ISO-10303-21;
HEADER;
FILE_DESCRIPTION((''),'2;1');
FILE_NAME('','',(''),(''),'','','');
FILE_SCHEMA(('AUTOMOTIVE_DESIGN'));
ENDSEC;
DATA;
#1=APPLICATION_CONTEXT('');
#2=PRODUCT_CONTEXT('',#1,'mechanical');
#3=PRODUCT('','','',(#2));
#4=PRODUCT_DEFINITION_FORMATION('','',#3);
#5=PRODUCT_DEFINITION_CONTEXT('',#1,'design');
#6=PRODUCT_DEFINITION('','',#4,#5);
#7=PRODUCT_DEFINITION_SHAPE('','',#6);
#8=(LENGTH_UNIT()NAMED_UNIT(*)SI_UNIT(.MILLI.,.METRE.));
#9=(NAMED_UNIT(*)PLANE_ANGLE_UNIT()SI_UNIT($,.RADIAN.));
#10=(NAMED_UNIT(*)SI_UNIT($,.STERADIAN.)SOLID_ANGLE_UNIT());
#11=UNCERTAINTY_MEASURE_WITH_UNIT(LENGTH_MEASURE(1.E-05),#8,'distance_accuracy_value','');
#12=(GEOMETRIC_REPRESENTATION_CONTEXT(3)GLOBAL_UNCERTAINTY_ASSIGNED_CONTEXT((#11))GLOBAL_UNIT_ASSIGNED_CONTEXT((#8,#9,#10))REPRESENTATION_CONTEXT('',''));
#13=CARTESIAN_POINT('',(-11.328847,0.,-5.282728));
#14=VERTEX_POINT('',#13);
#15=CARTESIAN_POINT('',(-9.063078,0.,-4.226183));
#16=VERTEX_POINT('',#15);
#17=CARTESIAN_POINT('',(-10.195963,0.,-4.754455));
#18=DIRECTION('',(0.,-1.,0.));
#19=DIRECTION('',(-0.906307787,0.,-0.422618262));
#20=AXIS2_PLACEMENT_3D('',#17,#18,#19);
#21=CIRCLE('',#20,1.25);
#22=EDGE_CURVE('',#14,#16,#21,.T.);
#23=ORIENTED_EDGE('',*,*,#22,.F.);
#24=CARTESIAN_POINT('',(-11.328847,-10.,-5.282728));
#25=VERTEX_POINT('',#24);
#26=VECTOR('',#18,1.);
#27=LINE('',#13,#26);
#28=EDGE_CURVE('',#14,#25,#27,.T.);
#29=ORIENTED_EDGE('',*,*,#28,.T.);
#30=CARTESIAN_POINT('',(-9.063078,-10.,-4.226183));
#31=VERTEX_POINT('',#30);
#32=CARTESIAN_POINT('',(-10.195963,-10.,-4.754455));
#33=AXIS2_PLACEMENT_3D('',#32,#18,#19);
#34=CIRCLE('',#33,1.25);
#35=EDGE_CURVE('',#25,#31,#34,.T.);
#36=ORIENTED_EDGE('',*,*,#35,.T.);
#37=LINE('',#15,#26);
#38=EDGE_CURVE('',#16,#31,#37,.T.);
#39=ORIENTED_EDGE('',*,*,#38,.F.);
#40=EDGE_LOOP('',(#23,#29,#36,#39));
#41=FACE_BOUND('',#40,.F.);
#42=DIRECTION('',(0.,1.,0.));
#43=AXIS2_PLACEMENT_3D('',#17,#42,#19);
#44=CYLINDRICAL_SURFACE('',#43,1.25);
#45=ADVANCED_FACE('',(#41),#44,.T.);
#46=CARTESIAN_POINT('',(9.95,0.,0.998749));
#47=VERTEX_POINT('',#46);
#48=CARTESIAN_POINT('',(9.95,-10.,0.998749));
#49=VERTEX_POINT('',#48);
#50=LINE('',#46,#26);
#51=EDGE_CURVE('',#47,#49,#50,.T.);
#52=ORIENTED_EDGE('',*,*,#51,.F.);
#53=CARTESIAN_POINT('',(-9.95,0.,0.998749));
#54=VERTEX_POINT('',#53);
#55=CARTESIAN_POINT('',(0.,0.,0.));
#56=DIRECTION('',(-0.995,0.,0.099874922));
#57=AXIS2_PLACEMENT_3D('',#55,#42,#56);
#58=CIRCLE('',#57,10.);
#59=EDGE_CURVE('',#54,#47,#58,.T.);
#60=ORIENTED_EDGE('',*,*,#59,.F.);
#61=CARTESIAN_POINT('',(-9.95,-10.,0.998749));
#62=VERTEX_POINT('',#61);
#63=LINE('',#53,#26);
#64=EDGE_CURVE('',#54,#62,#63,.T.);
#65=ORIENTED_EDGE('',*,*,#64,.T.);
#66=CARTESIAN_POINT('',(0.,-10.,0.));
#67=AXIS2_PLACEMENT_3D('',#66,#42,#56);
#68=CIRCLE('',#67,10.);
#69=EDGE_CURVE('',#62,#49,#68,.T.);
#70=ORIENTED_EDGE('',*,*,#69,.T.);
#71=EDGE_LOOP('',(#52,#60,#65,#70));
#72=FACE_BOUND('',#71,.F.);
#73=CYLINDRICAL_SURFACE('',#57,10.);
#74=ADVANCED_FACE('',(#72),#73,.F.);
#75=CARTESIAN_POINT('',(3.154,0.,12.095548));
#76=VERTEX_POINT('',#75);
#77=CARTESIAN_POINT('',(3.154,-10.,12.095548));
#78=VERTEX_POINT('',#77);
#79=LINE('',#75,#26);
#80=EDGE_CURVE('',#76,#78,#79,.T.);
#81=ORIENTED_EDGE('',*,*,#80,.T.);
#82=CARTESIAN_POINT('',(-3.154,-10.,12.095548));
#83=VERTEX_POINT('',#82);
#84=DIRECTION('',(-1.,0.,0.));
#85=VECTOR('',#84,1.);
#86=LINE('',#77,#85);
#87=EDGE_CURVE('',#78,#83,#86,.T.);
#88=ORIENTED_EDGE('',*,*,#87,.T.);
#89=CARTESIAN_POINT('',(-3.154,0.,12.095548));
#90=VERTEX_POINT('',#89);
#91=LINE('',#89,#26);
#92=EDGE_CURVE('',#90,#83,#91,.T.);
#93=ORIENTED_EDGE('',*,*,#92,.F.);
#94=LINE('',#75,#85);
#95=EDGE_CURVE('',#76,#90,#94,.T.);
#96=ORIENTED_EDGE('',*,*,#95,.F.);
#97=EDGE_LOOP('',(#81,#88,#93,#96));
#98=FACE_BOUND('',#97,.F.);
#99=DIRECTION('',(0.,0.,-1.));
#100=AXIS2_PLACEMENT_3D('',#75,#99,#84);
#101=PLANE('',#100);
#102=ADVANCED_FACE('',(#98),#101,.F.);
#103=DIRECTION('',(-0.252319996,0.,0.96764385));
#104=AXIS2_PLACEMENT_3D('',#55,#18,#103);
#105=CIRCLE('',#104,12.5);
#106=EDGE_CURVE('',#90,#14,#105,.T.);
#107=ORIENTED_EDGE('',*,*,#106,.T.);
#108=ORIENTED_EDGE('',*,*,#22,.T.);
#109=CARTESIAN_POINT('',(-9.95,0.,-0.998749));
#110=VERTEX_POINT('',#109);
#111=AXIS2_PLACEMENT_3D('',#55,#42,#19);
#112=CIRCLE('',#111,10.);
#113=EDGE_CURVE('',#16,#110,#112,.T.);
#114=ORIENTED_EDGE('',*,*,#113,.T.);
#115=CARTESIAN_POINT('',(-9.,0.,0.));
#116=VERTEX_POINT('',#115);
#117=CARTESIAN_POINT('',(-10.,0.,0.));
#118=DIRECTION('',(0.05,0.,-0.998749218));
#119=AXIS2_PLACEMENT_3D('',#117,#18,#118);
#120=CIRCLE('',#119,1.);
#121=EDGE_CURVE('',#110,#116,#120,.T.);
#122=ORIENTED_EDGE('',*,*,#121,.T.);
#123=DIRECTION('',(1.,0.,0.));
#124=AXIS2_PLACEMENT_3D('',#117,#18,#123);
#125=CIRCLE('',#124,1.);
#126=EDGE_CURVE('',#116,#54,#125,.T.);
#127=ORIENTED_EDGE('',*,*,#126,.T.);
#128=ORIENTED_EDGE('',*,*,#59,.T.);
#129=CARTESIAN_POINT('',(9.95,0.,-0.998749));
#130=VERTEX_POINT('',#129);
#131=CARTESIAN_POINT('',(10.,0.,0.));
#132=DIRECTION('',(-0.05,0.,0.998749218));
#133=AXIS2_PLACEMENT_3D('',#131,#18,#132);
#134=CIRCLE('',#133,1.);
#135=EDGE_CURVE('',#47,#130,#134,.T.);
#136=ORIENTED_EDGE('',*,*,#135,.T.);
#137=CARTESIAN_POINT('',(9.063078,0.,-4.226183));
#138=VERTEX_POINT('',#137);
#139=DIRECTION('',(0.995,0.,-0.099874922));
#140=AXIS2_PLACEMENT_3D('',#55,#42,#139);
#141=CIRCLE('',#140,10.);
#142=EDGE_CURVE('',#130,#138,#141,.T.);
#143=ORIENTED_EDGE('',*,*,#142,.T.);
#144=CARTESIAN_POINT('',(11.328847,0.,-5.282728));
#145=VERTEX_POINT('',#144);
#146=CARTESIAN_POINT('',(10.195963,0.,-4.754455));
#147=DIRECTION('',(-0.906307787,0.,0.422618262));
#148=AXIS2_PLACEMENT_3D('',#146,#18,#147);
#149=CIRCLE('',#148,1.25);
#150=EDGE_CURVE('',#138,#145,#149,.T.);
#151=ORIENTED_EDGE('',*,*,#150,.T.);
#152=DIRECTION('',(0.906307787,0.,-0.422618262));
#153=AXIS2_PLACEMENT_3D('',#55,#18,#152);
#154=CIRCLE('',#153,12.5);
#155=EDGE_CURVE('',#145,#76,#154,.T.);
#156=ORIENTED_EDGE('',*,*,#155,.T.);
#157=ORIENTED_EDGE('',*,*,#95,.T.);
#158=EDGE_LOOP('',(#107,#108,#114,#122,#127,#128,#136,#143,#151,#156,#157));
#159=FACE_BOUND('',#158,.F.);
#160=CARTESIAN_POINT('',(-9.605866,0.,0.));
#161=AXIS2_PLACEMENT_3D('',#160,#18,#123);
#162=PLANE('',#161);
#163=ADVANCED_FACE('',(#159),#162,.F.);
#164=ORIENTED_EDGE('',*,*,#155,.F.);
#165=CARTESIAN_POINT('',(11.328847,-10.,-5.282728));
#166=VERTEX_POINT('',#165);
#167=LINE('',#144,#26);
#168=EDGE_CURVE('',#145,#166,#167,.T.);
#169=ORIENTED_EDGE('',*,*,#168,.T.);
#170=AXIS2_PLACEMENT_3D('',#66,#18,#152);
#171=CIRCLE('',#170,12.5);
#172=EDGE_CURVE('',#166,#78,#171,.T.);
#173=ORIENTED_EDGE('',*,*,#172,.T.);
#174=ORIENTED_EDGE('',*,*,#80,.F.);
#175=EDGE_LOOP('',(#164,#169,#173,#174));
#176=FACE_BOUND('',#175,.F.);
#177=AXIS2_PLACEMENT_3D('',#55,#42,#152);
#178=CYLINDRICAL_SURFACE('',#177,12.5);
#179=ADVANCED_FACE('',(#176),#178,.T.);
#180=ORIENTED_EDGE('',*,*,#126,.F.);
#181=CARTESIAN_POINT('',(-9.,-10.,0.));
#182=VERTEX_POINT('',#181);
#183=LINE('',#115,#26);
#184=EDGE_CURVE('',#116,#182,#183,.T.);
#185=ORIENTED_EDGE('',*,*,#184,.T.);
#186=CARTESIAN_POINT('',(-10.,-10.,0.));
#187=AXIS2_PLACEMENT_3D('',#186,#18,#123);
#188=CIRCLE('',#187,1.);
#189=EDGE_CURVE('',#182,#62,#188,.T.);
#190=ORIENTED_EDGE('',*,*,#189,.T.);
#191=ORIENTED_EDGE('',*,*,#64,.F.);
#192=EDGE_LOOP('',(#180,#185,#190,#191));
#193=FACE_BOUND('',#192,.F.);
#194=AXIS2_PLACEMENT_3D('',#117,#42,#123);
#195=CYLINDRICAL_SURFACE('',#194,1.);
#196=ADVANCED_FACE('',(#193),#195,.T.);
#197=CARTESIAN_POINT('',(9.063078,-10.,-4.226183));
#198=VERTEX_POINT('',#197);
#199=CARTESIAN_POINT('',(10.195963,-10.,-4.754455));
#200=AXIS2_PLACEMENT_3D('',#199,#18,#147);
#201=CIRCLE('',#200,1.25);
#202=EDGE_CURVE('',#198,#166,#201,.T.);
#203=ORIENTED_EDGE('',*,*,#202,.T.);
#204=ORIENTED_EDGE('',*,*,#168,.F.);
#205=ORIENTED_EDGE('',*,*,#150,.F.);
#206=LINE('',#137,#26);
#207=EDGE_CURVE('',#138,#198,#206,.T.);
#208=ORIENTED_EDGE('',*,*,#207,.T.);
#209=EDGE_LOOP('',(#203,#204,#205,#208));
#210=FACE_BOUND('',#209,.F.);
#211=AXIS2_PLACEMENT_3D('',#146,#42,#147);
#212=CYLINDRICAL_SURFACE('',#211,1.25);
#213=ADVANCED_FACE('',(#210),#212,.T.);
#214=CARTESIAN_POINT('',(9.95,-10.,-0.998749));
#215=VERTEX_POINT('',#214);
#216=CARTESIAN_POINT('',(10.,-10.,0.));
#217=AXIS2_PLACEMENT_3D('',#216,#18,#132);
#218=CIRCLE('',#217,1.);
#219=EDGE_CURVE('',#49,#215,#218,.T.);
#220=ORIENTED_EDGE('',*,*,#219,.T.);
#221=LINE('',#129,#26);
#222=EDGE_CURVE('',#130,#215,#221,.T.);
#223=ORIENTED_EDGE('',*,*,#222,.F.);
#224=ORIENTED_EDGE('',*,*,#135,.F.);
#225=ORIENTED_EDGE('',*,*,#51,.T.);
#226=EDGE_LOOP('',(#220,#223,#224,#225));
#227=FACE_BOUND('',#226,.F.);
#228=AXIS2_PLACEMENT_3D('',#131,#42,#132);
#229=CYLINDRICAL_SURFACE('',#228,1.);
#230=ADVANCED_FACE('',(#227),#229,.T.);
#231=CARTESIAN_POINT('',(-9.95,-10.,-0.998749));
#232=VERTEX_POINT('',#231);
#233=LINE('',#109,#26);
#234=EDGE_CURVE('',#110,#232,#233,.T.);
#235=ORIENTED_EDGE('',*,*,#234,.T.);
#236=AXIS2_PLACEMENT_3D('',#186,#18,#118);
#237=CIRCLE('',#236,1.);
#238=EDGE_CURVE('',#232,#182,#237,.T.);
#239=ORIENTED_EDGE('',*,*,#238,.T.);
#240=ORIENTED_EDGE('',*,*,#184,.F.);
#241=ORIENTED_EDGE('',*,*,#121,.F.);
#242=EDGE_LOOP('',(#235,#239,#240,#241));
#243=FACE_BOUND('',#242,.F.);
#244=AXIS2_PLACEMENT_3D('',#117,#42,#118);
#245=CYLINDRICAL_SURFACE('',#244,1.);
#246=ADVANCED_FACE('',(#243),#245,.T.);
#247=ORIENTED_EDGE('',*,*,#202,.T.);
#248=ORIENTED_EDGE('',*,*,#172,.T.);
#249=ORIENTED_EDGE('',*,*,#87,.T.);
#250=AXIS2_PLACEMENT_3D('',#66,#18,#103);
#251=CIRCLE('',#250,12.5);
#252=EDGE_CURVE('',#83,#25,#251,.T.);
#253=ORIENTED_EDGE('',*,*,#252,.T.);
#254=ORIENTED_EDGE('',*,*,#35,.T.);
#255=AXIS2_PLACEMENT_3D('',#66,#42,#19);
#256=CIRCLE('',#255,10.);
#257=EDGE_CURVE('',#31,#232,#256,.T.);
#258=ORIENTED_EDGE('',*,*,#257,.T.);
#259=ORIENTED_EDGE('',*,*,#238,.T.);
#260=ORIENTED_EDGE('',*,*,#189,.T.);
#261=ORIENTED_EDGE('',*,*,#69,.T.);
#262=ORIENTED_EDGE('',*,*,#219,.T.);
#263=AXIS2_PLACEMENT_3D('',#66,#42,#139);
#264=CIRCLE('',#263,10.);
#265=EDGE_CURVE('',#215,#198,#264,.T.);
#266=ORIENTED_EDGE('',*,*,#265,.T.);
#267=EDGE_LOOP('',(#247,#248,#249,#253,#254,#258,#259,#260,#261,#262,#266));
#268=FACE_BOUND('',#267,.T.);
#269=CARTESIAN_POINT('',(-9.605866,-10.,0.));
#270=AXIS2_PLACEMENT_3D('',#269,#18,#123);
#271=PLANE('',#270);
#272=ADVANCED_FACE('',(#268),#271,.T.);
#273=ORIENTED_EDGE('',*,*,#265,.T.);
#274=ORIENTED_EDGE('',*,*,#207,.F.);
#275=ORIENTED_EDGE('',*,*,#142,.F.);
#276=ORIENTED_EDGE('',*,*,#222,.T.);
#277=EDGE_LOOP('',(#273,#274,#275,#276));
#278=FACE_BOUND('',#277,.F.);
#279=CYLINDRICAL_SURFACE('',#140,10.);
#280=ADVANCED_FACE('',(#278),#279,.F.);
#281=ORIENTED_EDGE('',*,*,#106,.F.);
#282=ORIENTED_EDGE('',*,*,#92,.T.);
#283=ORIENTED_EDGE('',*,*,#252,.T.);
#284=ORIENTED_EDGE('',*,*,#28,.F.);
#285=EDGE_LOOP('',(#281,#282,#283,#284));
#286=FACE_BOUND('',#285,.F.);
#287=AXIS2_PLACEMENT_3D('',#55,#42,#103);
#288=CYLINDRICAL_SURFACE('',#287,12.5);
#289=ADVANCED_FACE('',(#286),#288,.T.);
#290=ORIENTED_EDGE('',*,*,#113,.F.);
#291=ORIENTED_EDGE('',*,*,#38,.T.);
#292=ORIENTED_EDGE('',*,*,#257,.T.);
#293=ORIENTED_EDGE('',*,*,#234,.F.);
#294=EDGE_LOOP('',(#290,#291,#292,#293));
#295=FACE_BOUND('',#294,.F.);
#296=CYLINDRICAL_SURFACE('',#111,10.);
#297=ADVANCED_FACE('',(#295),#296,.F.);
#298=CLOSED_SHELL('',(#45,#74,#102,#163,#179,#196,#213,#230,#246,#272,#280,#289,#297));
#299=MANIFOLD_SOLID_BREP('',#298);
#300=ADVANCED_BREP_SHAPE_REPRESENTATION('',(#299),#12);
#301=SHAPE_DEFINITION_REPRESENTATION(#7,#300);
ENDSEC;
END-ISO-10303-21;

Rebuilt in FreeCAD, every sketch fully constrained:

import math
import FreeCAD as App
import Part
import Sketcher

V = App.Vector

doc = App.newDocument("Part")
body = doc.addObject("PartDesign::Body", "Body")

sketch1 = body.newObject("Sketcher::SketchObject", "Sketch")
sketch1.AttachmentSupport = (doc.getObject("XZ_Plane"), [""])
sketch1.MapMode = "FlatFace"
sketch1.addGeometry([
    Part.ArcOfCircle(Part.Circle(V(-10, 0, 0), V(0, 0, 1), 1), math.radians(-87.134016), math.radians(0)),
    Part.ArcOfCircle(Part.Circle(V(-10, 0, 0), V(0, 0, 1), 1), math.radians(0), math.radians(87.134016)),
    Part.ArcOfCircle(Part.Circle(V(0, 0, 0), V(0, 0, 1), 10), math.radians(5.731968), math.radians(174.268032)),
    Part.ArcOfCircle(Part.Circle(V(10, 0, 0), V(0, 0, 1), 1), math.radians(92.865984), math.radians(267.134016)),
    Part.ArcOfCircle(Part.Circle(V(0, 0, 0), V(0, 0, 1), 10), math.radians(-25), math.radians(-5.731968)),
    Part.ArcOfCircle(Part.Circle(V(10.195963, -4.754455, 0), V(0, 0, 1), 1.25), math.radians(155), math.radians(335)),
    Part.ArcOfCircle(Part.Circle(V(0, 0, 0), V(0, 0, 1), 12.5), math.radians(-25), math.radians(75.38516)),
    Part.LineSegment(V(3.154, 12.095548, 0), V(-3.154, 12.095548, 0)),
    Part.ArcOfCircle(Part.Circle(V(0, 0, 0), V(0, 0, 1), 12.5), math.radians(104.61484), math.radians(205)),
    Part.ArcOfCircle(Part.Circle(V(-10.195963, -4.754455, 0), V(0, 0, 1), 1.25), math.radians(-155), math.radians(25)),
    Part.ArcOfCircle(Part.Circle(V(0, 0, 0), V(0, 0, 1), 10), math.radians(-174.268032), math.radians(-155)),
], False)
sketch1.addConstraint([
    Sketcher.Constraint("Tangent", 0, 2, 1, 1),
    Sketcher.Constraint("Coincident", 1, 2, 2, 2),
    Sketcher.Constraint("Coincident", 2, 1, 3, 1),
    Sketcher.Constraint("Coincident", 3, 2, 4, 2),
    Sketcher.Constraint("Tangent", 4, 1, 5, 1),
    Sketcher.Constraint("Tangent", 5, 2, 6, 1),
    Sketcher.Constraint("Coincident", 6, 2, 7, 1),
    Sketcher.Constraint("Coincident", 7, 2, 8, 1),
    Sketcher.Constraint("Tangent", 8, 2, 9, 1),
    Sketcher.Constraint("Tangent", 9, 2, 10, 2),
    Sketcher.Constraint("Coincident", 10, 1, 0, 1),
    Sketcher.Constraint("Horizontal", 7),
    Sketcher.Constraint("Coincident", 2, 3, -1, 1),
    Sketcher.Constraint("Coincident", 4, 3, -1, 1),
    Sketcher.Constraint("Coincident", 6, 3, -1, 1),
    Sketcher.Constraint("Coincident", 8, 3, -1, 1),
    Sketcher.Constraint("Coincident", 10, 3, -1, 1),
    Sketcher.Constraint("Equal", 0, 1),
    Sketcher.Constraint("Equal", 1, 3),
    Sketcher.Constraint("Equal", 2, 4),
    Sketcher.Constraint("Equal", 6, 8),
    Sketcher.Constraint("Equal", 5, 9),
    Sketcher.Constraint("Symmetric", 0, 3, 3, 3, -1, 1),
    Sketcher.Constraint("PointOnObject", 0, 3, -1),
    Sketcher.Constraint("PointOnObject", 0, 2, -1),
    Sketcher.Constraint("Horizontal", 5, 3, 9, 3),
    Sketcher.Constraint("Radius", 0, 1.0),
    Sketcher.Constraint("Radius", 2, 10.0),
    Sketcher.Constraint("Radius", 6, 12.5),
    Sketcher.Constraint("DistanceX", 0, 3, -1, 1, 10.0),
    Sketcher.Constraint("DistanceX", 7, 2, 7, 1, 6.308),
    Sketcher.Constraint("DistanceY", 5, 2, -1, 1, 5.282728),
])
pad1 = body.newObject("PartDesign::Pad", "Pad")
pad1.Profile = sketch1
pad1.Length = 10

doc.recompute()
